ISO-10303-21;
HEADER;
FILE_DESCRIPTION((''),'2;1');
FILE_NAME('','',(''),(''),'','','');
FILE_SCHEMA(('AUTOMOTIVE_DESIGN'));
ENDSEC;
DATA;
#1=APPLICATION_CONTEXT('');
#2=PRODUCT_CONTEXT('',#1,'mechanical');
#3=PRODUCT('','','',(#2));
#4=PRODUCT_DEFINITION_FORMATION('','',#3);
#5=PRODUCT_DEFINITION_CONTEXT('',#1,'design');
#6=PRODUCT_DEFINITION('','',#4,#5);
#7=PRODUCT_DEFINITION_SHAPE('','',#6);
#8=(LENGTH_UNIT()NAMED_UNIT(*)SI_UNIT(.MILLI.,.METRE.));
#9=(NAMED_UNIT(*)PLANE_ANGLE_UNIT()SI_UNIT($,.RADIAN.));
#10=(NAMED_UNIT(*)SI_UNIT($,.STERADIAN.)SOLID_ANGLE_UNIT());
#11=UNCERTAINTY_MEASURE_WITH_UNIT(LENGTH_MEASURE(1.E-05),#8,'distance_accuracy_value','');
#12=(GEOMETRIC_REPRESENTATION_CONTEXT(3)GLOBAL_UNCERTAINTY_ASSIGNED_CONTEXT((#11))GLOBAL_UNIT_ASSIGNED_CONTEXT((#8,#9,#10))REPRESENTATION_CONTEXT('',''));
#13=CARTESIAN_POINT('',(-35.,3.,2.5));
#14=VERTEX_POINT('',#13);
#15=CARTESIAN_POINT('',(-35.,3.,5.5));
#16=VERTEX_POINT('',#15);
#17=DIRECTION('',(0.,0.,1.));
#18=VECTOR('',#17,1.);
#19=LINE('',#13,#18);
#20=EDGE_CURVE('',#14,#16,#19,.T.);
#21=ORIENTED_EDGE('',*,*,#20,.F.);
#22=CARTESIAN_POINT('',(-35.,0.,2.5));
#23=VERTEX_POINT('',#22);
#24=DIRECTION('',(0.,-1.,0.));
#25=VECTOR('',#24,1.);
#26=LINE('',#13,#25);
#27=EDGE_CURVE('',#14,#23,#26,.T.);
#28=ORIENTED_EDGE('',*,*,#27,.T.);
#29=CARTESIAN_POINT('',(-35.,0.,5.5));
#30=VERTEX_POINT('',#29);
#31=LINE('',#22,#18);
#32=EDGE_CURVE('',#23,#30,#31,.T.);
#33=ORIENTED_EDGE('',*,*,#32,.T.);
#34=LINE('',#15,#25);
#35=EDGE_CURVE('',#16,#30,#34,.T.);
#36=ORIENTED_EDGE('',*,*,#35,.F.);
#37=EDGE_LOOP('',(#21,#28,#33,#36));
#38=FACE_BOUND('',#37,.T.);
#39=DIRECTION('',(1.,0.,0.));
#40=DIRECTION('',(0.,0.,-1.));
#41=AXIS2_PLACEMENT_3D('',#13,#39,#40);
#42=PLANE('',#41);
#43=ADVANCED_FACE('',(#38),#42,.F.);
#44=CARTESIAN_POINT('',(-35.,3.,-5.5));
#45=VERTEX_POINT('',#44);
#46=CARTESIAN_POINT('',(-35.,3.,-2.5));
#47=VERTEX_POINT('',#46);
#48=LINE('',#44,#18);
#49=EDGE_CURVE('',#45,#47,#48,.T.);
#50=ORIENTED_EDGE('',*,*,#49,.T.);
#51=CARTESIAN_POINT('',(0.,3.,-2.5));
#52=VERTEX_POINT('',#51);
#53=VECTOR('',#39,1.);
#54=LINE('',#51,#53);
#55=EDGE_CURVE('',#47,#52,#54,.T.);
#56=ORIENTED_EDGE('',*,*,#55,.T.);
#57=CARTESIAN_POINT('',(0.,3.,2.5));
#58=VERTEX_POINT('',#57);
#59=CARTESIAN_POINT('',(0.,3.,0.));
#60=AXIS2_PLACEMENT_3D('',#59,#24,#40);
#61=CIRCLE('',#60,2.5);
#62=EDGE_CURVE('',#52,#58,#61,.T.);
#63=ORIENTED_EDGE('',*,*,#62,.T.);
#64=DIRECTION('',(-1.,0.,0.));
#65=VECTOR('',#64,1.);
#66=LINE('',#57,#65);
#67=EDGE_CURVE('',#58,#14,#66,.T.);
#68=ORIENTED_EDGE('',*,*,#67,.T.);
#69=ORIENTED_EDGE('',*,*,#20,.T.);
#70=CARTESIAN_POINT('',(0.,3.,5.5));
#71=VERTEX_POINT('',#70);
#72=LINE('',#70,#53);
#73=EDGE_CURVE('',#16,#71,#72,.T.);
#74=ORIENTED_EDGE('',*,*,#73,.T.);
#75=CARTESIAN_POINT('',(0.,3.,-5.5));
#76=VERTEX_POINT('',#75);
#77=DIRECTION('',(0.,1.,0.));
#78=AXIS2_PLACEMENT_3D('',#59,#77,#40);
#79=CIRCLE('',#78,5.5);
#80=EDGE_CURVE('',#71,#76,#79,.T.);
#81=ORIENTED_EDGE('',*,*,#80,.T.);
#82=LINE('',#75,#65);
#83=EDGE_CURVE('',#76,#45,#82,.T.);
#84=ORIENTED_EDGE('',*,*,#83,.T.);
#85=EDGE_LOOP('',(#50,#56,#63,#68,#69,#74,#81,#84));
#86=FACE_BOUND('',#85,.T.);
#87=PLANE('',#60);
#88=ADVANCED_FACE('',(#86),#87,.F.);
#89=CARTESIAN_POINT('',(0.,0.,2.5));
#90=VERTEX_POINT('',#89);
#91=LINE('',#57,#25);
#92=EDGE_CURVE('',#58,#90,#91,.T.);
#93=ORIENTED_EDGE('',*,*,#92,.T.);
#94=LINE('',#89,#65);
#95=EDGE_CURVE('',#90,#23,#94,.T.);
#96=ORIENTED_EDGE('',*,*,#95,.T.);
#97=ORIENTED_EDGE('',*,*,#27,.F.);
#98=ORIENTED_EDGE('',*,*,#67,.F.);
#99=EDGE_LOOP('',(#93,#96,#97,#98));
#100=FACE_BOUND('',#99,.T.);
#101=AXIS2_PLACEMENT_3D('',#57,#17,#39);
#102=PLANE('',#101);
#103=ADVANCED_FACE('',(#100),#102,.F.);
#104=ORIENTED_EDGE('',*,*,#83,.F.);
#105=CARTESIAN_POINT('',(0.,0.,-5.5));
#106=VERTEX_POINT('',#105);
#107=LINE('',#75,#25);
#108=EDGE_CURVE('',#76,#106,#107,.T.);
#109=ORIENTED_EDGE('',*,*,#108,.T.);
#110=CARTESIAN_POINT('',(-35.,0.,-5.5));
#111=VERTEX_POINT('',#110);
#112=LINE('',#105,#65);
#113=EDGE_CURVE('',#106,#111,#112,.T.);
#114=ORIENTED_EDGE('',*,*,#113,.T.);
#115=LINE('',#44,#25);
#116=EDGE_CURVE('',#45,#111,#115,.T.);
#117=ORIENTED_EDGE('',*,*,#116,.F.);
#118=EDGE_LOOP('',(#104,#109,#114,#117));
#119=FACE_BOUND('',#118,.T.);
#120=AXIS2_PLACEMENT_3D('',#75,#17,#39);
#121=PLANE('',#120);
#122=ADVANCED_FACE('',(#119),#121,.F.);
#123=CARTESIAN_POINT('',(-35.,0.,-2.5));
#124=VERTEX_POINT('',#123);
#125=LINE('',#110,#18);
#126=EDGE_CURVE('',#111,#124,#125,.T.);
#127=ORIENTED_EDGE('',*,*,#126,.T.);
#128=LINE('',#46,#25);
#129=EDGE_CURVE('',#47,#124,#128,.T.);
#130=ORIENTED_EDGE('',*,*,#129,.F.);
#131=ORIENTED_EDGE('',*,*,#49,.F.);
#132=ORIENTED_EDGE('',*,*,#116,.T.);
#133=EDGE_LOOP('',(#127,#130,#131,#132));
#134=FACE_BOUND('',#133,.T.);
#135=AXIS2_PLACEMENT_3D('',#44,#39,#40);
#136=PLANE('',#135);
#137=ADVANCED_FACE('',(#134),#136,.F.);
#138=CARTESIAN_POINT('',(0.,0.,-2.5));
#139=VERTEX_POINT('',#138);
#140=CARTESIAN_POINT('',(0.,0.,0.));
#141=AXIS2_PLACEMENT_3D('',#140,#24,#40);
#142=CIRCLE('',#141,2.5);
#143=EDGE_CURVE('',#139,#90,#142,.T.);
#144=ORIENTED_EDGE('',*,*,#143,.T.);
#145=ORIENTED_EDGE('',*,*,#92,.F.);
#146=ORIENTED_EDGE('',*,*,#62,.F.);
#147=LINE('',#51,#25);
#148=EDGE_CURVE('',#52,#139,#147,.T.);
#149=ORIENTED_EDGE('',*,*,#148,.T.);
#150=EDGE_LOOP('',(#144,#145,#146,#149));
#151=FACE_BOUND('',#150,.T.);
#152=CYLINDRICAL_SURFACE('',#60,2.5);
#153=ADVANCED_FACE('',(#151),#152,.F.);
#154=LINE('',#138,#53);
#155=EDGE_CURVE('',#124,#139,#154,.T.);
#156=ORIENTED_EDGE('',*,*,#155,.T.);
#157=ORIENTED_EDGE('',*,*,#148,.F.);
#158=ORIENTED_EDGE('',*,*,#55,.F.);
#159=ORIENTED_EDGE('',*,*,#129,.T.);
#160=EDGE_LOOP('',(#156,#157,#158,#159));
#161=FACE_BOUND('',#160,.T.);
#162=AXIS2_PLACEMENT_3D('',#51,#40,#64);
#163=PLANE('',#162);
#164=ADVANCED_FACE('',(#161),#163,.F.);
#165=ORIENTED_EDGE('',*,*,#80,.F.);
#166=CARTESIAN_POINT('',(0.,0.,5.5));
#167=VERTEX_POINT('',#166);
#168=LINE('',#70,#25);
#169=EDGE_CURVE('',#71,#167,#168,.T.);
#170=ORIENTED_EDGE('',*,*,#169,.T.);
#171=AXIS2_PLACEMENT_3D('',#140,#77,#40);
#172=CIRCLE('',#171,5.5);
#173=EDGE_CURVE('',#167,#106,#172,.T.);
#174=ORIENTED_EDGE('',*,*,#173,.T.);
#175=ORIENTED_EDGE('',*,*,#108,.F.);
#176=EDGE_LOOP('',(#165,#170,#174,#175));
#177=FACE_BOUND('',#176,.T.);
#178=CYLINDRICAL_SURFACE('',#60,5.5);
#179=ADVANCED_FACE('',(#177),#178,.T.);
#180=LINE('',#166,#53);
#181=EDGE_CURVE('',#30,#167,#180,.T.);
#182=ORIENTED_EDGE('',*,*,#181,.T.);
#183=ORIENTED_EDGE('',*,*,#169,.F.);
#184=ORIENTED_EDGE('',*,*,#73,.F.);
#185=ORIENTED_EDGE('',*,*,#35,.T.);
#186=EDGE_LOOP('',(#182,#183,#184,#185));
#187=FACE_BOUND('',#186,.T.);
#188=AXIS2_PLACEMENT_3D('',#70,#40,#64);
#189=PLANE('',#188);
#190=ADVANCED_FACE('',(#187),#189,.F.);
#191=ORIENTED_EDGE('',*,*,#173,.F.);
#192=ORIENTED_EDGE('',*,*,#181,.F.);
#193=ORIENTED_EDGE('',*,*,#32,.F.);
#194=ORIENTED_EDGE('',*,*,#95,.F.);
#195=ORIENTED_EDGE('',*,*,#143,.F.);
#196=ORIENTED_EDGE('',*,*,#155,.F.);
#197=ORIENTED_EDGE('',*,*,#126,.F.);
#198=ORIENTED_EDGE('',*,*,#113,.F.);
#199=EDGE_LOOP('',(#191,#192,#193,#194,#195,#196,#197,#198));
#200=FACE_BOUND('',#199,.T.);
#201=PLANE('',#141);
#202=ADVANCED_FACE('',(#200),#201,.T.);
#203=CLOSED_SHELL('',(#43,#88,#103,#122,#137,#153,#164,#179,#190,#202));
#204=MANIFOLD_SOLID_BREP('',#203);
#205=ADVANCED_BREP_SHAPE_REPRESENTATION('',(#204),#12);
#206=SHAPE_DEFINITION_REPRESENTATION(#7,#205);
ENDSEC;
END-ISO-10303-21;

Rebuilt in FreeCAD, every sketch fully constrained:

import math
import FreeCAD as App
import Part
import Sketcher

V = App.Vector

doc = App.newDocument("Part")
body = doc.addObject("PartDesign::Body", "Body")

# Sketch on XZ plane
sketch1 = doc.addObject("Sketcher::SketchObject", "Sketch")
body.addObject(sketch1)
sketch1.AttachmentSupport = (doc.XZ_Plane, [""])
sketch1.MapMode = "FlatFace"
sketch1.addGeometry(Part.LineSegment(V(-35, -2.5, 0), V(0, -2.5, 0)), False)
sketch1.addGeometry(Part.ArcOfCircle(Part.Circle(V(0, 0, 0), V(0, 0, 1), 2.5), math.radians(-90), math.radians(90)), False)
sketch1.addGeometry(Part.LineSegment(V(0, 2.5, 0), V(-35, 2.5, 0)), False)
sketch1.addGeometry(Part.LineSegment(V(-35, 2.5, 0), V(-35, 5.5, 0)), False)
sketch1.addGeometry(Part.LineSegment(V(-35, 5.5, 0), V(0, 5.5, 0)), False)
sketch1.addGeometry(Part.ArcOfCircle(Part.Circle(V(0, 0, 0), V(0, 0, 1), 5.5), math.radians(-90), math.radians(90)), False)
sketch1.addGeometry(Part.LineSegment(V(0, -5.5, 0), V(-35, -5.5, 0)), False)
sketch1.addGeometry(Part.LineSegment(V(-35, -5.5, 0), V(-35, -2.5, 0)), False)
sketch1.addConstraint(Sketcher.Constraint("Tangent", 0, 2, 1, 1))
sketch1.addConstraint(Sketcher.Constraint("Tangent", 1, 2, 2, 1))
sketch1.addConstraint(Sketcher.Constraint("Coincident", 2, 2, 3, 1))
sketch1.addConstraint(Sketcher.Constraint("Coincident", 3, 2, 4, 1))
sketch1.addConstraint(Sketcher.Constraint("Tangent", 4, 2, 5, 2))
sketch1.addConstraint(Sketcher.Constraint("Tangent", 5, 1, 6, 1))
sketch1.addConstraint(Sketcher.Constraint("Coincident", 6, 2, 7, 1))
sketch1.addConstraint(Sketcher.Constraint("Coincident", 7, 2, 0, 1))
sketch1.addConstraint(Sketcher.Constraint("Horizontal", 0))
sketch1.addConstraint(Sketcher.Constraint("Horizontal", 2))
sketch1.addConstraint(Sketcher.Constraint("Vertical", 3))
sketch1.addConstraint(Sketcher.Constraint("Horizontal", 4))
sketch1.addConstraint(Sketcher.Constraint("Horizontal", 6))
sketch1.addConstraint(Sketcher.Constraint("Vertical", 7))
sketch1.addConstraint(Sketcher.Constraint("Coincident", 1, 3, -1, 1))
sketch1.addConstraint(Sketcher.Constraint("Coincident", 5, 3, -1, 1))
sketch1.addConstraint(Sketcher.Constraint("Vertical", 3, 2, 6, 2))
sketch1.addConstraint(Sketcher.Constraint("Radius", 1, 2.5))
sketch1.addConstraint(Sketcher.Constraint("Radius", 5, 5.5))
sketch1.addConstraint(Sketcher.Constraint("DistanceX", 0, 1, 0, 2, 35.0))
pad1 = doc.addObject("PartDesign::Pad", "Pad")
body.addObject(pad1)
pad1.Profile = sketch1
pad1.Length = 3
pad1.Reversed = True

doc.recompute()
